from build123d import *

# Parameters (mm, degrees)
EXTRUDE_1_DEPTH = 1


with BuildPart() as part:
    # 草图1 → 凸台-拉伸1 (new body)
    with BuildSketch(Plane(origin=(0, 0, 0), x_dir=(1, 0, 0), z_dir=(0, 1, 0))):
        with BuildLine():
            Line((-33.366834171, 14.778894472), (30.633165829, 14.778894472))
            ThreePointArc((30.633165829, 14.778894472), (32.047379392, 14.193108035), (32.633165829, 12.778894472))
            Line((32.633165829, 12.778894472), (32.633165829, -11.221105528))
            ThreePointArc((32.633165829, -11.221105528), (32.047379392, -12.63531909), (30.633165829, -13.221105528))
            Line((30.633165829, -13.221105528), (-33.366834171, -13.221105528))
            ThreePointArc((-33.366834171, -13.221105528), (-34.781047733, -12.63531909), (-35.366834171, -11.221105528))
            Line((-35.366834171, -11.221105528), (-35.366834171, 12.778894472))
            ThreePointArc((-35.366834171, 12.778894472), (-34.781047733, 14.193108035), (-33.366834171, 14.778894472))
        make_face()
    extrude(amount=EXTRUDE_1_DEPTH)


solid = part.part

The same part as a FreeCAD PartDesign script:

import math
import FreeCAD as App
import Part
import Sketcher

V = App.Vector
Q = App.Units.Quantity

doc = App.newDocument("Part")
body = doc.addObject("PartDesign::Body", "Body")

sketch1 = doc.addObject("Sketcher::SketchObject", "Sketch")
body.addObject(sketch1)
sketch1.AttachmentSupport = (doc.XZ_Plane, [""])
sketch1.MapMode = "FlatFace"
sketch1.addGeometry([
    Part.LineSegment(V(30.6, -14.8, 0), V(-33.4, -14.8, 0)),
    Part.ArcOfCircle(Part.Circle(V(-33.4, -12.8, 0), V(0, 0, 1), 2), math.radians(180), math.radians(270)),
    Part.LineSegment(V(-35.4, -12.8, 0), V(-35.4, 11.2, 0)),
    Part.ArcOfCircle(Part.Circle(V(-33.4, 11.2, 0), V(0, 0, 1), 2), math.radians(90), math.radians(180)),
    Part.LineSegment(V(-33.4, 13.2, 0), V(30.6, 13.2, 0)),
    Part.ArcOfCircle(Part.Circle(V(30.6, 11.2, 0), V(0, 0, 1), 2), math.radians(0), math.radians(90)),
    Part.LineSegment(V(32.6, 11.2, 0), V(32.6, -12.8, 0)),
    Part.ArcOfCircle(Part.Circle(V(30.6, -12.8, 0), V(0, 0, 1), 2), math.radians(-90), math.radians(0)),
], False)
sketch1.addConstraint([
    Sketcher.Constraint("Tangent", 0, 2, 1, 2),
    Sketcher.Constraint("Tangent", 1, 1, 2, 1),
    Sketcher.Constraint("Tangent", 2, 2, 3, 2),
    Sketcher.Constraint("Tangent", 3, 1, 4, 1),
    Sketcher.Constraint("Tangent", 4, 2, 5, 2),
    Sketcher.Constraint("Tangent", 5, 1, 6, 1),
    Sketcher.Constraint("Tangent", 6, 2, 7, 2),
    Sketcher.Constraint("Tangent", 7, 1, 0, 1),
    Sketcher.Constraint("Horizontal", 0),
    Sketcher.Constraint("Vertical", 2),
    Sketcher.Constraint("Horizontal", 4),
    Sketcher.Constraint("Vertical", 6),
    Sketcher.Constraint("Equal", 1, 3),
    Sketcher.Constraint("Equal", 3, 5),
    Sketcher.Constraint("Equal", 5, 7),
    Sketcher.Constraint("Radius", 1, Q("2 mm")),
    Sketcher.Constraint("DistanceX", 0, 2, 0, 1, Q("64 mm")),
    Sketcher.Constraint("DistanceY", 2, 1, 2, 2, Q("24 mm")),
    Sketcher.Constraint("DistanceX", 1, 3, -1, 1, Q("33.366834 mm")),
    Sketcher.Constraint("DistanceY", 1, 3, -1, 1, Q("12.778894 mm")),
])
pad1 = doc.addObject("PartDesign::Pad", "Pad")
body.addObject(pad1)
pad1.Profile = sketch1
pad1.Length = 1
pad1.Reversed = True

doc.recompute()
